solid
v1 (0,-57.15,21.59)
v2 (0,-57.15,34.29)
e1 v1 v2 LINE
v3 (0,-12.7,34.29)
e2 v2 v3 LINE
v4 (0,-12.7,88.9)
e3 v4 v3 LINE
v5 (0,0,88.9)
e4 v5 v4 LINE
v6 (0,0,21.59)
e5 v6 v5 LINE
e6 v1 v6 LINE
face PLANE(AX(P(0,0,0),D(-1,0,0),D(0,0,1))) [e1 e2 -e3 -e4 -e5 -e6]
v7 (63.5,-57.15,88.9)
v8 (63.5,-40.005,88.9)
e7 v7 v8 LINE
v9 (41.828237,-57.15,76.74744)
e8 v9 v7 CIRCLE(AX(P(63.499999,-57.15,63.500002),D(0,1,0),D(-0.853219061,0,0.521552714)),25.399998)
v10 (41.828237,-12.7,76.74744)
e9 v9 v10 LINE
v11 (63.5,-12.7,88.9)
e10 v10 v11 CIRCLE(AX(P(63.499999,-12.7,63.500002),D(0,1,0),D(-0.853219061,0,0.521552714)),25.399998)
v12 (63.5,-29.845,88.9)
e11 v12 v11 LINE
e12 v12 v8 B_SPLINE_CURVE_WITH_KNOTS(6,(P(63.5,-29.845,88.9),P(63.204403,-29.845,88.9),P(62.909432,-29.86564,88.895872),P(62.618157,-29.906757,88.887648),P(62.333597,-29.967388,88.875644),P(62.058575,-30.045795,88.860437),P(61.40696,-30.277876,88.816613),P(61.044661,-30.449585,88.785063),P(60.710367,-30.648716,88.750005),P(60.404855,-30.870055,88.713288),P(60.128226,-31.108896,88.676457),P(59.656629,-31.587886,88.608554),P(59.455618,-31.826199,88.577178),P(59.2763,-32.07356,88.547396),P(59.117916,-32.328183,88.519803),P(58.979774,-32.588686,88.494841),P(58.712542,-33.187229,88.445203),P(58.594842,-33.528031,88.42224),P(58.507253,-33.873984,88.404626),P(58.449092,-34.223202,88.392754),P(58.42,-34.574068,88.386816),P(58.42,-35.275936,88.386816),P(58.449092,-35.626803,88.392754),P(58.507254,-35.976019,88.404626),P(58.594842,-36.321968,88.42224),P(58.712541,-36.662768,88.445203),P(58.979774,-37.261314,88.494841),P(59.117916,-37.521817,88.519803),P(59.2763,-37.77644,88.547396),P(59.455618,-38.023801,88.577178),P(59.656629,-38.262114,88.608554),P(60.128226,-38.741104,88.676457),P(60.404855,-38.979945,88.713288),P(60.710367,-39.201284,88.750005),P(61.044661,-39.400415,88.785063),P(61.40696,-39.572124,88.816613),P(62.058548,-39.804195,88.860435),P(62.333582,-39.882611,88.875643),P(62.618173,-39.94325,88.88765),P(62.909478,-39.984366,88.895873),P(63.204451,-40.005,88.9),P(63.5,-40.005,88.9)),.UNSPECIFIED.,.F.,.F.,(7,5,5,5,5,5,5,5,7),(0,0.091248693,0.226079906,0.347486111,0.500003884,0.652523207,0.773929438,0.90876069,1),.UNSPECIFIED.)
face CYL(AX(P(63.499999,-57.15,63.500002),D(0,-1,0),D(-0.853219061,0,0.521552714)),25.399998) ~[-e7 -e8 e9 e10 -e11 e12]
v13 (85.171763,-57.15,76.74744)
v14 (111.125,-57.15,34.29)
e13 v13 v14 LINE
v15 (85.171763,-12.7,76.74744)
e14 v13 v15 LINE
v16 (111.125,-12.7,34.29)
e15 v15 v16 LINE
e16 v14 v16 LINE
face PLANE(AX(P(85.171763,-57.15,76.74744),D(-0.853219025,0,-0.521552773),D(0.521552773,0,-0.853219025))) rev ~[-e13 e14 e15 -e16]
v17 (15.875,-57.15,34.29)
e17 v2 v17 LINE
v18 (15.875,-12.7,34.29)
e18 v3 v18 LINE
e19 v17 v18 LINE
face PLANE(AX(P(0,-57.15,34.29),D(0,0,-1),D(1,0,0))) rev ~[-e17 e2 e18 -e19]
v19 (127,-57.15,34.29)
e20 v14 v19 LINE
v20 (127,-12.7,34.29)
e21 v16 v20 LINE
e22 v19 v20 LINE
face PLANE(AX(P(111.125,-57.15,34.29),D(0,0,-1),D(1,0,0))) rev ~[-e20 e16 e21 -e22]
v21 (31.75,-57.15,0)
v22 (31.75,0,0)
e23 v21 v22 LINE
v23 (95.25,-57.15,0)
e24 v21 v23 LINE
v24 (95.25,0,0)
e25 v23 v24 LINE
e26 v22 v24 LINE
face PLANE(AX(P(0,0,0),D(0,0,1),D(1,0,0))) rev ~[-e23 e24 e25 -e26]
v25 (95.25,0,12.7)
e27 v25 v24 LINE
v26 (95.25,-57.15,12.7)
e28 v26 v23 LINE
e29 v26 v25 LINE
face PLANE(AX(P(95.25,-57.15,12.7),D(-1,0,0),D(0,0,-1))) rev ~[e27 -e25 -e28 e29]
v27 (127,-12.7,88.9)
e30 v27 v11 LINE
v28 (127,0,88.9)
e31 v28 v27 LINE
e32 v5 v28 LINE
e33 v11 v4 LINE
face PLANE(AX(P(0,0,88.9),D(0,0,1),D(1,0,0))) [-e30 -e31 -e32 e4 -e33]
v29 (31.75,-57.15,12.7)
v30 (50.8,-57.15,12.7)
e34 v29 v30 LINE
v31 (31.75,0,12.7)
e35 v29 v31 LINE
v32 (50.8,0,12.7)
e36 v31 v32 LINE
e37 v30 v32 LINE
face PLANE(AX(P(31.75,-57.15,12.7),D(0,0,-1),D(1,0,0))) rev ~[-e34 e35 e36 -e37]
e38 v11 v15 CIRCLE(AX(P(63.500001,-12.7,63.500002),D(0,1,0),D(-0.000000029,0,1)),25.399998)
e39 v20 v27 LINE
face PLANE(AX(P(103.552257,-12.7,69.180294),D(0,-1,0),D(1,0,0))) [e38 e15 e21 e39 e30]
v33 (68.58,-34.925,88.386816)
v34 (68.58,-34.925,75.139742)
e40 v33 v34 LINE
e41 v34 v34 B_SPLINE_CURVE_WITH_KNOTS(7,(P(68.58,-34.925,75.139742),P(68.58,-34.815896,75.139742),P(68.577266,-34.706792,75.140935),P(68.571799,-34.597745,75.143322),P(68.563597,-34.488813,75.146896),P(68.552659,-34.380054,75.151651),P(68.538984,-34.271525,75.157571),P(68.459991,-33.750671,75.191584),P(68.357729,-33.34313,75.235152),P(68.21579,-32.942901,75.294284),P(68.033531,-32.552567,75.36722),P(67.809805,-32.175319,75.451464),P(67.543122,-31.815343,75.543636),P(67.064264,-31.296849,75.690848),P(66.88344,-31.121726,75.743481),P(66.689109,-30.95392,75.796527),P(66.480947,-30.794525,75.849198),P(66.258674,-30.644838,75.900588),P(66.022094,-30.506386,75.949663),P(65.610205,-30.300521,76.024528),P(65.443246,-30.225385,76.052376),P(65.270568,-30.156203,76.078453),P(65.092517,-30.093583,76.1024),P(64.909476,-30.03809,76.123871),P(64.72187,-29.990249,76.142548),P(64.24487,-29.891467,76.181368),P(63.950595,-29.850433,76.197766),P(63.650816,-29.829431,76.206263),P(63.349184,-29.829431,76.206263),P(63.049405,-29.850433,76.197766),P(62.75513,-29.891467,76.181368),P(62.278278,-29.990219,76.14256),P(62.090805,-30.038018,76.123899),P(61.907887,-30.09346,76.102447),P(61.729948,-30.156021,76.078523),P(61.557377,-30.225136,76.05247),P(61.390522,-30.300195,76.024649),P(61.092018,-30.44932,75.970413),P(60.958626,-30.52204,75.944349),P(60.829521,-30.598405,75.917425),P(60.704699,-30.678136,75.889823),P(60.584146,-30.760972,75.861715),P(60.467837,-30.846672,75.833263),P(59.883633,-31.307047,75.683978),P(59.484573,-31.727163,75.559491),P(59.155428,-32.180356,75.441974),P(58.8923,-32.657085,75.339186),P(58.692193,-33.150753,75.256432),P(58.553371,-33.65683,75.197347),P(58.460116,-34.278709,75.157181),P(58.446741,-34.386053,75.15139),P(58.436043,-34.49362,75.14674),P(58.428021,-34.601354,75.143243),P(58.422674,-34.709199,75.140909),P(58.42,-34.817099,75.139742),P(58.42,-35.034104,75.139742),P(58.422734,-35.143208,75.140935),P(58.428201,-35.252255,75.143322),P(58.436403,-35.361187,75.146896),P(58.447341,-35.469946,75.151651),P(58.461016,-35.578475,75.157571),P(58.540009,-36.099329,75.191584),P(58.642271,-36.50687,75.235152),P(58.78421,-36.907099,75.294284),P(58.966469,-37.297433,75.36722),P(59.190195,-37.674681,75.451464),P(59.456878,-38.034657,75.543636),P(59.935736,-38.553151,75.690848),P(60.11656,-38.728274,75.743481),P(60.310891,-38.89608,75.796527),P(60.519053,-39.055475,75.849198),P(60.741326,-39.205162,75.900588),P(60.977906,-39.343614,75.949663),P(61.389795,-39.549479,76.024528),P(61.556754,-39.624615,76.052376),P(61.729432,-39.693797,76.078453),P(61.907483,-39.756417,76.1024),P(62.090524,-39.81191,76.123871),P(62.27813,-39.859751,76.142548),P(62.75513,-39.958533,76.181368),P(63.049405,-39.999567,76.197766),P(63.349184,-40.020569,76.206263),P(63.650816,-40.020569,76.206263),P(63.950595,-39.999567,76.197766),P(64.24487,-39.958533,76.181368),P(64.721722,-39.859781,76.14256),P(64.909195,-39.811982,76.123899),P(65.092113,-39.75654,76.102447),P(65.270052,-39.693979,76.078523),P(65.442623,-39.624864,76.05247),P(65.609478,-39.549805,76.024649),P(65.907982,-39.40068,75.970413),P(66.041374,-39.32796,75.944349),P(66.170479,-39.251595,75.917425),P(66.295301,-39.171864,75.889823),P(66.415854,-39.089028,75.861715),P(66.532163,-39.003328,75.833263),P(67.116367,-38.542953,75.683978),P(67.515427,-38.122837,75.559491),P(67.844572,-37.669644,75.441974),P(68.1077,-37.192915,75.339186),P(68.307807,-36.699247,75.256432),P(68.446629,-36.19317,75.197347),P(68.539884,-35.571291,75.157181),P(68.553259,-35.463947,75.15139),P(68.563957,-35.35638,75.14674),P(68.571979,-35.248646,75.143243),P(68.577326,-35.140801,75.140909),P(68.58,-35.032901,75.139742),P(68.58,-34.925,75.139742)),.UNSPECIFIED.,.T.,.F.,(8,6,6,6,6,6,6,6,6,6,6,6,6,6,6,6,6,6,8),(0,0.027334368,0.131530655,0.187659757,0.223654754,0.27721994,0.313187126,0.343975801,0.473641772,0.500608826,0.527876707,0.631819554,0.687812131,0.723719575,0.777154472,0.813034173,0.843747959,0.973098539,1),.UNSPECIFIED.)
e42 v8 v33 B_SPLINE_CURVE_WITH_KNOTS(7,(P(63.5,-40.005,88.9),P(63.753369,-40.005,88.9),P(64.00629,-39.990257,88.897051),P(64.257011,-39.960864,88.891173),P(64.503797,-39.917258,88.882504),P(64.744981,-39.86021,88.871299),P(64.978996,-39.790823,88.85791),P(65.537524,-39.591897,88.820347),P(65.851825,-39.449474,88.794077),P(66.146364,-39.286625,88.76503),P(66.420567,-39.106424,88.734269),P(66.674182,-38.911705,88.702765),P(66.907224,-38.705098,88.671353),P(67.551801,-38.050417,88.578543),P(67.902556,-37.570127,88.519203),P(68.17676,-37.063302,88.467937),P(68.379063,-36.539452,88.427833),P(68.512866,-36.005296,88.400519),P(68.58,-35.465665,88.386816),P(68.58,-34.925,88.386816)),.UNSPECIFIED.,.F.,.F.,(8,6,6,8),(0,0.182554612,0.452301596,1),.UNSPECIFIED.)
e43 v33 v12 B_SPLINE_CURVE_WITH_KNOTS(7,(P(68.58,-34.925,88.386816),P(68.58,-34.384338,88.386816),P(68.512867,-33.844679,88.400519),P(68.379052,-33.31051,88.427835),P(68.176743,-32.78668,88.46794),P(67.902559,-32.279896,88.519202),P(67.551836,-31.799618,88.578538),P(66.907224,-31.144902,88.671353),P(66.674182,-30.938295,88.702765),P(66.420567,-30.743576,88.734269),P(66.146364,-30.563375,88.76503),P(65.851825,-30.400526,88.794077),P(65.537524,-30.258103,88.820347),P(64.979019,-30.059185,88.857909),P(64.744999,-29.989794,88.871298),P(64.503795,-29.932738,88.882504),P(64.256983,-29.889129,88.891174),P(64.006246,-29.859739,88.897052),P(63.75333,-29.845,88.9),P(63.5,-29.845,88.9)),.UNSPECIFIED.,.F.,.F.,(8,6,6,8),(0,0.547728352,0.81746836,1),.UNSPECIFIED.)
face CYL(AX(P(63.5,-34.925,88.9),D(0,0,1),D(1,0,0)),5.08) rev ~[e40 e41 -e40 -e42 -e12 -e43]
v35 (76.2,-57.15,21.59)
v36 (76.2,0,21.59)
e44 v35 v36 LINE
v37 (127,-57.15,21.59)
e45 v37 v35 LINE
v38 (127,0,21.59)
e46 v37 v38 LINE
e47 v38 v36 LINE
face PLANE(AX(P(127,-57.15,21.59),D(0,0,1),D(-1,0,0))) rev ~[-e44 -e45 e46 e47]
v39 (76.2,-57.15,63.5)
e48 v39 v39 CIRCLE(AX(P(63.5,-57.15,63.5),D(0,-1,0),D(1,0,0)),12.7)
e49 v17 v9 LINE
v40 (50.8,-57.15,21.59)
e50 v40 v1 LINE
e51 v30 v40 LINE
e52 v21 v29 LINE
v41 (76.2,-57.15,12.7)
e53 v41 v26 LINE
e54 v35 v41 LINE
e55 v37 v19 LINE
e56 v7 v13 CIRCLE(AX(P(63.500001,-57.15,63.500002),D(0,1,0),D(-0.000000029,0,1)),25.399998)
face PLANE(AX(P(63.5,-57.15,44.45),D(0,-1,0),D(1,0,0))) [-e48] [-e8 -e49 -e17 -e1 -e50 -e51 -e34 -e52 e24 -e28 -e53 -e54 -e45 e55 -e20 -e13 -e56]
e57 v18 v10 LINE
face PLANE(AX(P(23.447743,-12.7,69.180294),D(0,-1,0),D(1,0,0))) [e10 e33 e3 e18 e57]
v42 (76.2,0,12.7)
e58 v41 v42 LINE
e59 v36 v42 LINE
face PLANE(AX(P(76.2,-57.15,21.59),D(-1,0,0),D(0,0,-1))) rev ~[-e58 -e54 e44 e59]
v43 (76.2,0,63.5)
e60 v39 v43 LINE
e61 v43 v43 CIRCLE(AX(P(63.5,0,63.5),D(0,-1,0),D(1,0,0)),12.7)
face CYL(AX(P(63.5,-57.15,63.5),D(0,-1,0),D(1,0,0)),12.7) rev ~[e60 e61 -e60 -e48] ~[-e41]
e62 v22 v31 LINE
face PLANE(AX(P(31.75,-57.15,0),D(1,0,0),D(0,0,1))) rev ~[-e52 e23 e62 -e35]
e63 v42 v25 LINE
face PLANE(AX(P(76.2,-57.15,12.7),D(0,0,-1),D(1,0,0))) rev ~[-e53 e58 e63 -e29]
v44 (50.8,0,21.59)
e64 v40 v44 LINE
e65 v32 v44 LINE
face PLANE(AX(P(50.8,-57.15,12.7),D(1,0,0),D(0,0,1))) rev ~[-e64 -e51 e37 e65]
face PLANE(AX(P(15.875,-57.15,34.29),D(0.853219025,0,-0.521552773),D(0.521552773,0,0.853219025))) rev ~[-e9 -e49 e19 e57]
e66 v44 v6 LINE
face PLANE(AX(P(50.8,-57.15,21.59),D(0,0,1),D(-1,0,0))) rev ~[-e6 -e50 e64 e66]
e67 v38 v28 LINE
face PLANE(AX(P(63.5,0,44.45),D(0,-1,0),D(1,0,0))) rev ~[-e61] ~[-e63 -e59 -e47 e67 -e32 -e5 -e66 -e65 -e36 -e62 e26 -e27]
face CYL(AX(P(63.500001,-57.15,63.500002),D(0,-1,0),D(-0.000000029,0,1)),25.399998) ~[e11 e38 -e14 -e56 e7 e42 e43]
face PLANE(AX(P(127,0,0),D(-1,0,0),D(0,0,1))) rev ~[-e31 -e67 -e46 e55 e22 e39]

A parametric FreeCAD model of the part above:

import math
import FreeCAD as App
import Part
import Sketcher
from FreeCAD import Vector
Q = App.Units.Quantity


def add_polygon(sketch, points):
    """Adds a closed chain of lines whose ends are joined by coincident constraints."""
    first, n = sketch.GeometryCount, len(points)
    for a, b in zip(points, points[1:] + points[:1]):
        sketch.addGeometry(Part.LineSegment(App.Vector(*a, 0), App.Vector(*b, 0)), False)
    for i in range(n):
        sketch.addConstraint(Sketcher.Constraint("Coincident", first + i, 2, first + (i + 1) % n, 1))

doc = App.newDocument("Part")
body = doc.addObject("PartDesign::Body", "Body")

# Sketch on XZ plane
sketch1 = doc.addObject("Sketcher::SketchObject", "Sketch")
body.addObject(sketch1)
sketch1.AttachmentSupport = (doc.XZ_Plane, [""])
sketch1.MapMode = "FlatFace"
add_polygon(sketch1, [(0, 89), (0, 0), (127, 0), (127, 89)])  # lines 0-3
sketch1.addConstraint(Sketcher.Constraint("Vertical", 0))
sketch1.addConstraint(Sketcher.Constraint("Horizontal", 1))
sketch1.addConstraint(Sketcher.Constraint("Vertical", 2))
sketch1.addConstraint(Sketcher.Constraint("Horizontal", 3))
sketch1.addConstraint(Sketcher.Constraint("Coincident", 0, 2, -1, 1))
sketch1.addConstraint(Sketcher.Constraint("DistanceX", 1, 1, 1, 2, Q("5 in")))
sketch1.addConstraint(Sketcher.Constraint("DistanceY", 0, 2, 0, 1, Q("3.5 in")))
pad1 = doc.addObject("PartDesign::Pad", "Pad")
body.addObject(pad1)
pad1.Profile = sketch1
pad1.Length = Q("2.25 in")

# Sketch on XZ plane
sketch2 = doc.addObject("Sketcher::SketchObject", "Sketch001")
body.addObject(sketch2)
sketch2.AttachmentSupport = (doc.XZ_Plane, [""])
sketch2.MapMode = "FlatFace"
sketch2.AttachmentOffset = App.Placement(Vector(0, 0, 2.25 * 25.4), App.Rotation())
sketch2.addGeometry(Part.Circle(Vector(64, 64, 0), Vector(0, 0, 1), 13), False)  # 0
add_polygon(sketch2, [(127, 0), (127, 22), (76, 22), (76, 13), (95, 13), (95, 0)])  # lines 1-6
add_polygon(sketch2, [(51, 22), (0, 22), (0, 0), (32, 0), (32, 13), (51, 13)])  # lines 7-12
sketch2.addConstraint(Sketcher.Constraint("Vertical", 1))
sketch2.addConstraint(Sketcher.Constraint("Horizontal", 2))
sketch2.addConstraint(Sketcher.Constraint("Vertical", 3))
sketch2.addConstraint(Sketcher.Constraint("Horizontal", 4))
sketch2.addConstraint(Sketcher.Constraint("Vertical", 5))
sketch2.addConstraint(Sketcher.Constraint("Horizontal", 6))
sketch2.addConstraint(Sketcher.Constraint("Horizontal", 7))
sketch2.addConstraint(Sketcher.Constraint("Vertical", 8))
sketch2.addConstraint(Sketcher.Constraint("Horizontal", 9))
sketch2.addConstraint(Sketcher.Constraint("Vertical", 10))
sketch2.addConstraint(Sketcher.Constraint("Horizontal", 11))
sketch2.addConstraint(Sketcher.Constraint("Vertical", 12))
sketch2.addConstraint(Sketcher.Constraint("Coincident", 8, 2, -1, 1))
sketch2.addConstraint(Sketcher.Constraint("PointOnObject", 5, 2, -1))
sketch2.addConstraint(Sketcher.Constraint("Horizontal", 2, 2, 7, 2))
sketch2.addConstraint(Sketcher.Constraint("Horizontal", 4, 2, 10, 2))
sketch2.addConstraint(Sketcher.Constraint("Equal", 2, 7))
sketch2.addConstraint(Sketcher.Constraint("Equal", 6, 9))
sketch2.addConstraint(Sketcher.Constraint("Diameter", 0, Q("1 in")))
sketch2.addConstraint(Sketcher.Constraint("DistanceX", 2, 2, 2, 1, Q("2 in")))
sketch2.addConstraint(Sketcher.Constraint("DistanceY", 5, 2, 5, 1, Q("0.5 in")))
sketch2.addConstraint(Sketcher.Constraint("DistanceX", -1, 1, 1, 2, Q("5 in")))
sketch2.addConstraint(Sketcher.Constraint("DistanceY", 3, 2, 0, 3, Q("2 in")))
sketch2.addConstraint(Sketcher.Constraint("DistanceX", 4, 1, 4, 2, Q("0.75 in")))
sketch2.addConstraint(Sketcher.Constraint("DistanceY", 1, 1, 1, 2, Q("0.85 in")))
sketch2.addConstraint(Sketcher.Constraint("DistanceX", -1, 1, 0, 3, Q("2.5 in")))
pocket1 = doc.addObject("PartDesign::Pocket", "Pocket")
body.addObject(pocket1)
pocket1.Profile = sketch2
pocket1.Type = "ThroughAll"

# Sketch on XZ plane
sketch3 = doc.addObject("Sketcher::SketchObject", "Sketch002")
body.addObject(sketch3)
sketch3.AttachmentSupport = (doc.XZ_Plane, [""])
sketch3.MapMode = "FlatFace"
sketch3.AttachmentOffset = App.Placement(Vector(0, 0, 2.25 * 25.4), App.Rotation())
sketch3.addGeometry(Part.LineSegment(Vector(16, 34, 0), Vector(42, 77, 0)), False)
sketch3.addGeometry(Part.ArcOfCircle(Part.Circle(Vector(63, 64, 0), Vector(0, 0, 1), 25), math.radians(90), math.radians(149)), False)
sketch3.addGeometry(Part.LineSegment(Vector(64, 89, 0), Vector(0, 89, 0)), False)
sketch3.addGeometry(Part.LineSegment(Vector(0, 89, 0), Vector(0, 34, 0)), False)
sketch3.addGeometry(Part.LineSegment(Vector(0, 34, 0), Vector(16, 34, 0)), False)
sketch3.addGeometry(Part.ArcOfCircle(Part.Circle(Vector(64, 64, 0), Vector(0, 0, 1), 25), math.radians(31), math.radians(90)), False)
sketch3.addGeometry(Part.LineSegment(Vector(85, 77, 0), Vector(111, 34, 0)), False)
sketch3.addGeometry(Part.LineSegment(Vector(111, 34, 0), Vector(127, 34, 0)), False)
sketch3.addGeometry(Part.LineSegment(Vector(127, 34, 0), Vector(127, 89, 0)), False)
sketch3.addGeometry(Part.LineSegment(Vector(127, 89, 0), Vector(64, 89, 0)), False)
sketch3.addConstraint(Sketcher.Constraint("Tangent", 0, 2, 1, 2))
sketch3.addConstraint(Sketcher.Constraint("Tangent", 1, 1, 2, 1))
sketch3.addConstraint(Sketcher.Constraint("Coincident", 2, 2, 3, 1))
sketch3.addConstraint(Sketcher.Constraint("Coincident", 3, 2, 4, 1))
sketch3.addConstraint(Sketcher.Constraint("Coincident", 4, 2, 0, 1))
sketch3.addConstraint(Sketcher.Constraint("Tangent", 5, 1, 6, 1))
sketch3.addConstraint(Sketcher.Constraint("Coincident", 6, 2, 7, 1))
sketch3.addConstraint(Sketcher.Constraint("Coincident", 7, 2, 8, 1))
sketch3.addConstraint(Sketcher.Constraint("Coincident", 8, 2, 9, 1))
sketch3.addConstraint(Sketcher.Constraint("Tangent", 9, 2, 5, 2))
sketch3.addConstraint(Sketcher.Constraint("Horizontal", 2))
sketch3.addConstraint(Sketcher.Constraint("Vertical", 3))
sketch3.addConstraint(Sketcher.Constraint("Horizontal", 4))
sketch3.addConstraint(Sketcher.Constraint("Horizontal", 7))
sketch3.addConstraint(Sketcher.Constraint("Vertical", 8))
sketch3.addConstraint(Sketcher.Constraint("Horizontal", 9))
sketch3.addConstraint(Sketcher.Constraint("Coincident", 5, 3, 1, 3))
sketch3.addConstraint(Sketcher.Constraint("Equal", 1, 5))
sketch3.addConstraint(Sketcher.Constraint("PointOnObject", 2, 2, -2))
sketch3.addConstraint(Sketcher.Constraint("Horizontal", 0, 2, 5, 1))
sketch3.addConstraint(Sketcher.Constraint("Horizontal", 4, 2, 6, 2))
sketch3.addConstraint(Sketcher.Constraint("Equal", 4, 7))
sketch3.addConstraint(Sketcher.Constraint("Radius", 1, Q("0.9999999 in")))
sketch3.addConstraint(Sketcher.Constraint("DistanceX", 2, 2, 2, 1, Q("2.5 in")))
sketch3.addConstraint(Sketcher.Constraint("DistanceY", 3, 2, 3, 1, Q("2.15 in")))
sketch3.addConstraint(Sketcher.Constraint("DistanceY", -1, 1, 1, 3, Q("2.5000001 in")))
sketch3.addConstraint(Sketcher.Constraint("DistanceX", 4, 1, 4, 2, Q("0.625 in")))
pocket2 = doc.addObject("PartDesign::Pocket", "Pocket001")
body.addObject(pocket2)
pocket2.Profile = sketch3
pocket2.Length = Q("1.75 in")

# Sketch on XY plane
sketch4 = doc.addObject("Sketcher::SketchObject", "Sketch003")
body.addObject(sketch4)
sketch4.AttachmentSupport = (doc.XY_Plane, [""])
sketch4.MapMode = "FlatFace"
sketch4.AttachmentOffset = App.Placement(Vector(0, 0, 3.5 * 25.4), App.Rotation())
sketch4.addGeometry(Part.Circle(Vector(64, -35, 0), Vector(0, 0, 1), 5), False)
sketch4.addConstraint(Sketcher.Constraint("Diameter", 0, Q("0.4 in")))
sketch4.addConstraint(Sketcher.Constraint("DistanceX", -1, 1, 0, 3, Q("2.5 in")))
sketch4.addConstraint(Sketcher.Constraint("DistanceY", 0, 3, -1, 1, Q("1.375 in")))
pocket3 = doc.addObject("PartDesign::Pocket", "Pocket002")
body.addObject(pocket3)
pocket3.Profile = sketch4
pocket3.Length = Q("1 in")

doc.recompute()
